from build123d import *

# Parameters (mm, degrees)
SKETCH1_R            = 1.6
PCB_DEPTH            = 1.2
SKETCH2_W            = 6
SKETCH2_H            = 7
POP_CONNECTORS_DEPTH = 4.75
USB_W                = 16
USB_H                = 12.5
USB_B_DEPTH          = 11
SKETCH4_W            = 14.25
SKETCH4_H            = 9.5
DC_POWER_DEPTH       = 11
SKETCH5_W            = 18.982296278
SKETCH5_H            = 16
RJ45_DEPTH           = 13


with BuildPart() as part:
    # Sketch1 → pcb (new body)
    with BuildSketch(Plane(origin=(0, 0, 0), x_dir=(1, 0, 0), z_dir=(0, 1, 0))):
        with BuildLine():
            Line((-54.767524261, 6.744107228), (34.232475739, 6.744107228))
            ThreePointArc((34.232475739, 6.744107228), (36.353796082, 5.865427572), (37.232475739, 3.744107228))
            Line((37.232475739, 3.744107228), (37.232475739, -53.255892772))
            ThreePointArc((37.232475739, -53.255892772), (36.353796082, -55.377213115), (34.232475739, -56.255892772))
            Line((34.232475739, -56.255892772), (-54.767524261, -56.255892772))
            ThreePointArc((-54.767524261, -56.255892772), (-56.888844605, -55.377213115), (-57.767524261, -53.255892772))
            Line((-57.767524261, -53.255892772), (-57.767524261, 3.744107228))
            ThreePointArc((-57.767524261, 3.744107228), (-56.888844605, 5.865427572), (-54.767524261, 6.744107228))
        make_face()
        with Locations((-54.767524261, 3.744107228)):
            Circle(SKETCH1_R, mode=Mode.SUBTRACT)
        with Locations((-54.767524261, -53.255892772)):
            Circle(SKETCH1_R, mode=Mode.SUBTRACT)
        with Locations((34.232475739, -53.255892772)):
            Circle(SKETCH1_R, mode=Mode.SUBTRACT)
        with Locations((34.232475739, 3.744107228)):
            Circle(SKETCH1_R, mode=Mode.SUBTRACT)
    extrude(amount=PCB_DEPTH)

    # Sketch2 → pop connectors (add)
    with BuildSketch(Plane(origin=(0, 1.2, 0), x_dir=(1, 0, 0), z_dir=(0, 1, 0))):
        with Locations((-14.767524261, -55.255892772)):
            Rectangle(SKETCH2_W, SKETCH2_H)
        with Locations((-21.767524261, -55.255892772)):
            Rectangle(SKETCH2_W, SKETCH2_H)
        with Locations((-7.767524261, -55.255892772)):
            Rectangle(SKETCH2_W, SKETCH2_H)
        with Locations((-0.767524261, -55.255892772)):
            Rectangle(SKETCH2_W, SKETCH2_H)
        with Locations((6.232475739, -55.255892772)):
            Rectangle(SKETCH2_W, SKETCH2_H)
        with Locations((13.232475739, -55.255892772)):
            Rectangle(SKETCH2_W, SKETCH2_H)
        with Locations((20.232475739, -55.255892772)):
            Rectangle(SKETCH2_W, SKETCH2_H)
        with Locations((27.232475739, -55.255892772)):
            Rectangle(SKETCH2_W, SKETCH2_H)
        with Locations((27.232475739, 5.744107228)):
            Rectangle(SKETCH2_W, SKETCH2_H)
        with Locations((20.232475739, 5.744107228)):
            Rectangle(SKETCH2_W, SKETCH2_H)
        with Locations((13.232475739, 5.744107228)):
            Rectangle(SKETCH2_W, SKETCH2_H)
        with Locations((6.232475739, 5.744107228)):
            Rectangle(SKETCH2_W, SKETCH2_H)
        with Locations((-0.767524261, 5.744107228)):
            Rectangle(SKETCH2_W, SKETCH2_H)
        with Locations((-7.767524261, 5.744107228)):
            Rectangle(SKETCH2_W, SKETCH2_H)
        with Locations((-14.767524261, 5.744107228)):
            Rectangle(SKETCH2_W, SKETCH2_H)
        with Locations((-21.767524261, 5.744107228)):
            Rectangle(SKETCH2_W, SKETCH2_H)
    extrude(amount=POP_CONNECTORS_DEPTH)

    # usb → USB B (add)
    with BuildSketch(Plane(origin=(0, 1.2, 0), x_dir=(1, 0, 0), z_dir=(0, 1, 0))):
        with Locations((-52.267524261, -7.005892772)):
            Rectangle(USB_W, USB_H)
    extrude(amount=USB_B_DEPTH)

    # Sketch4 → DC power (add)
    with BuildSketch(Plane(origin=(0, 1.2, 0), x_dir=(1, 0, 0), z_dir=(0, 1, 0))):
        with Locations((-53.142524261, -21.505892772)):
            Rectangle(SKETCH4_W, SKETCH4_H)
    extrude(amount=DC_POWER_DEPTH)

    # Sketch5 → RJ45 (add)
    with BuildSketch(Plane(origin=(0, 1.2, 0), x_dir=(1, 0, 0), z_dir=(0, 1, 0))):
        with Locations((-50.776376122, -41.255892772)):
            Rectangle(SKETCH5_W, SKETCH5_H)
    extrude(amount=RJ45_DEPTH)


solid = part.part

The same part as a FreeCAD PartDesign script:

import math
import FreeCAD as App
import Part
import Sketcher

doc = App.newDocument("Part")
params = doc.addObject("Spreadsheet::Sheet", "Params")
for row, (alias, value) in enumerate([
    ("sketch1_radius", "3 mm"),
    ("sketch1_diameter", "3.2 mm"),
    ("sketch1_width", "89 mm"),
    ("sketch1_height", "57 mm"),
    ("pad1_length", "1.2 mm"),
    ("sketch2_width", "6 mm"),
    ("sketch2_height", "7 mm"),
    ("pad2_length", "4.75 mm"),
    ("sketch3_width", "16 mm"),
    ("sketch3_height", "12.5 mm"),
    ("pad3_length", "11 mm"),
    ("sketch4_height", "9.5 mm"),
    ("sketch4_width", "14.25 mm"),
    ("pad4_length", "11 mm"),
    ("sketch5_height", "16 mm"),
    ("pad5_length", "13 mm"),
], start=1):
    params.set(f"A{row}", alias)
    params.set(f"B{row}", "=" + value)
    params.setAlias(f"B{row}", alias)

body = doc.addObject("PartDesign::Body", "Body")

sketch1 = body.newObject("Sketcher::SketchObject", "Sketch")
sketch1.AttachmentSupport = (doc.getObject("XZ_Plane"), [""])
sketch1.MapMode = "FlatFace"
sketch1.addGeometry(Part.LineSegment(App.Vector(34.2, -6.7, 0), App.Vector(-54.8, -6.7, 0)), False)
sketch1.addGeometry(Part.ArcOfCircle(Part.Circle(App.Vector(-54.8, -3.7, 0), App.Vector(0, 0, 1), 3), math.radians(180), math.radians(270)), False)
sketch1.addGeometry(Part.LineSegment(App.Vector(-57.8, -3.7, 0), App.Vector(-57.8, 53.3, 0)), False)
sketch1.addGeometry(Part.ArcOfCircle(Part.Circle(App.Vector(-54.8, 53.3, 0), App.Vector(0, 0, 1), 3), math.radians(90), math.radians(180)), False)
sketch1.addGeometry(Part.LineSegment(App.Vector(-54.8, 56.3, 0), App.Vector(34.2, 56.3, 0)), False)
sketch1.addGeometry(Part.ArcOfCircle(Part.Circle(App.Vector(34.2, 53.3, 0), App.Vector(0, 0, 1), 3), math.radians(0), math.radians(90)), False)
sketch1.addGeometry(Part.LineSegment(App.Vector(37.2, 53.3, 0), App.Vector(37.2, -3.7, 0)), False)
sketch1.addGeometry(Part.ArcOfCircle(Part.Circle(App.Vector(34.2, -3.7, 0), App.Vector(0, 0, 1), 3), math.radians(-90), math.radians(0)), False)
sketch1.addGeometry(Part.Circle(App.Vector(34.2, 53.3, 0), App.Vector(0, 0, 1), 1.6), False)
sketch1.addGeometry(Part.Circle(App.Vector(-54.8, 53.3, 0), App.Vector(0, 0, 1), 1.6), False)
sketch1.addGeometry(Part.Circle(App.Vector(34.2, -3.7, 0), App.Vector(0, 0, 1), 1.6), False)
sketch1.addGeometry(Part.Circle(App.Vector(-54.8, -3.7, 0), App.Vector(0, 0, 1), 1.6), False)
sketch1.addConstraint(Sketcher.Constraint("Tangent", 0, 2, 1, 2))
sketch1.addConstraint(Sketcher.Constraint("Tangent", 1, 1, 2, 1))
sketch1.addConstraint(Sketcher.Constraint("Tangent", 2, 2, 3, 2))
sketch1.addConstraint(Sketcher.Constraint("Tangent", 3, 1, 4, 1))
sketch1.addConstraint(Sketcher.Constraint("Tangent", 4, 2, 5, 2))
sketch1.addConstraint(Sketcher.Constraint("Tangent", 5, 1, 6, 1))
sketch1.addConstraint(Sketcher.Constraint("Tangent", 6, 2, 7, 2))
sketch1.addConstraint(Sketcher.Constraint("Tangent", 7, 1, 0, 1))
sketch1.addConstraint(Sketcher.Constraint("Horizontal", 0))
sketch1.addConstraint(Sketcher.Constraint("Vertical", 2))
sketch1.addConstraint(Sketcher.Constraint("Horizontal", 4))
sketch1.addConstraint(Sketcher.Constraint("Vertical", 6))
sketch1.addConstraint(Sketcher.Constraint("Coincident", 8, 3, 5, 3))
sketch1.addConstraint(Sketcher.Constraint("Coincident", 9, 3, 3, 3))
sketch1.addConstraint(Sketcher.Constraint("Coincident", 10, 3, 7, 3))
sketch1.addConstraint(Sketcher.Constraint("Coincident", 11, 3, 1, 3))
sketch1.addConstraint(Sketcher.Constraint("Equal", 1, 3))
sketch1.addConstraint(Sketcher.Constraint("Equal", 3, 5))
sketch1.addConstraint(Sketcher.Constraint("Equal", 5, 7))
sketch1.addConstraint(Sketcher.Constraint("Equal", 8, 9))
sketch1.addConstraint(Sketcher.Constraint("Equal", 9, 10))
sketch1.addConstraint(Sketcher.Constraint("Equal", 10, 11))
sketch1.addConstraint(Sketcher.Constraint("Radius", 1, 3.0))
sketch1.addConstraint(Sketcher.Constraint("Diameter", 8, 3.2))
sketch1.addConstraint(Sketcher.Constraint("DistanceX", 0, 2, 0, 1, 89.0))
sketch1.addConstraint(Sketcher.Constraint("DistanceY", 2, 1, 2, 2, 57.0))
sketch1.addConstraint(Sketcher.Constraint("DistanceX", 1, 3, -1, 1, 54.767524))
sketch1.addConstraint(Sketcher.Constraint("DistanceY", 1, 3, -1, 1, 3.744107))
sketch1.setExpression("Constraints[22]", "Params.sketch1_radius")
sketch1.setExpression("Constraints[23]", "Params.sketch1_diameter")
sketch1.setExpression("Constraints[24]", "Params.sketch1_width")
sketch1.setExpression("Constraints[25]", "Params.sketch1_height")
pad1 = body.newObject("PartDesign::Pad", "Pad")
pad1.Profile = sketch1
pad1.setExpression("Length", "Params.pad1_length")
pad1.Reversed = True

sketch2 = body.newObject("Sketcher::SketchObject", "Sketch001")
sketch2.AttachmentSupport = (doc.getObject("XZ_Plane"), [""])
sketch2.MapMode = "FlatFace"
sketch2.AttachmentOffset = App.Placement(App.Vector(0, 0, -1.2), App.Rotation())
sketch2.addGeometry(Part.LineSegment(App.Vector(-18, 52, 0), App.Vector(-18, 59, 0)), False)
sketch2.addGeometry(Part.LineSegment(App.Vector(-18, 59, 0), App.Vector(-12, 59, 0)), False)
sketch2.addGeometry(Part.LineSegment(App.Vector(-12, 59, 0), App.Vector(-12, 52, 0)), False)
sketch2.addGeometry(Part.LineSegment(App.Vector(-12, 52, 0), App.Vector(-18, 52, 0)), False)
sketch2.addGeometry(Part.LineSegment(App.Vector(-25, 52, 0), App.Vector(-25, 59, 0)), False)
sketch2.addGeometry(Part.LineSegment(App.Vector(-25, 59, 0), App.Vector(-19, 59, 0)), False)
sketch2.addGeometry(Part.LineSegment(App.Vector(-19, 59, 0), App.Vector(-19, 52, 0)), False)
sketch2.addGeometry(Part.LineSegment(App.Vector(-19, 52, 0), App.Vector(-25, 52, 0)), False)
sketch2.addGeometry(Part.LineSegment(App.Vector(-11, 52, 0), App.Vector(-11, 59, 0)), False)
sketch2.addGeometry(Part.LineSegment(App.Vector(-11, 59, 0), App.Vector(-5, 59, 0)), False)
sketch2.addGeometry(Part.LineSegment(App.Vector(-5, 59, 0), App.Vector(-5, 52, 0)), False)
sketch2.addGeometry(Part.LineSegment(App.Vector(-5, 52, 0), App.Vector(-11, 52, 0)), False)
sketch2.addGeometry(Part.LineSegment(App.Vector(-4, 52, 0), App.Vector(-4, 59, 0)), False)
sketch2.addGeometry(Part.LineSegment(App.Vector(-4, 59, 0), App.Vector(2, 59, 0)), False)
sketch2.addGeometry(Part.LineSegment(App.Vector(2, 59, 0), App.Vector(2, 52, 0)), False)
sketch2.addGeometry(Part.LineSegment(App.Vector(2, 52, 0), App.Vector(-4, 52, 0)), False)
sketch2.addGeometry(Part.LineSegment(App.Vector(3, 52, 0), App.Vector(3, 59, 0)), False)
sketch2.addGeometry(Part.LineSegment(App.Vector(3, 59, 0), App.Vector(9, 59, 0)), False)
sketch2.addGeometry(Part.LineSegment(App.Vector(9, 59, 0), App.Vector(9, 52, 0)), False)
sketch2.addGeometry(Part.LineSegment(App.Vector(9, 52, 0), App.Vector(3, 52, 0)), False)
sketch2.addGeometry(Part.LineSegment(App.Vector(10, 52, 0), App.Vector(10, 59, 0)), False)
sketch2.addGeometry(Part.LineSegment(App.Vector(10, 59, 0), App.Vector(16, 59, 0)), False)
sketch2.addGeometry(Part.LineSegment(App.Vector(16, 59, 0), App.Vector(16, 52, 0)), False)
sketch2.addGeometry(Part.LineSegment(App.Vector(16, 52, 0), App.Vector(10, 52, 0)), False)
sketch2.addGeometry(Part.LineSegment(App.Vector(17, 52, 0), App.Vector(17, 59, 0)), False)
sketch2.addGeometry(Part.LineSegment(App.Vector(17, 59, 0), App.Vector(23, 59, 0)), False)
sketch2.addGeometry(Part.LineSegment(App.Vector(23, 59, 0), App.Vector(23, 52, 0)), False)
sketch2.addGeometry(Part.LineSegment(App.Vector(23, 52, 0), App.Vector(17, 52, 0)), False)
sketch2.addGeometry(Part.LineSegment(App.Vector(24, 52, 0), App.Vector(24, 59, 0)), False)
sketch2.addGeometry(Part.LineSegment(App.Vector(24, 59, 0), App.Vector(30, 59, 0)), False)
sketch2.addGeometry(Part.LineSegment(App.Vector(30, 59, 0), App.Vector(30, 52, 0)), False)
sketch2.addGeometry(Part.LineSegment(App.Vector(30, 52, 0), App.Vector(24, 52, 0)), False)
sketch2.addGeometry(Part.LineSegment(App.Vector(24, -9, 0), App.Vector(24, -2, 0)), False)
sketch2.addGeometry(Part.LineSegment(App.Vector(24, -2, 0), App.Vector(30, -2, 0)), False)
sketch2.addGeometry(Part.LineSegment(App.Vector(30, -2, 0), App.Vector(30, -9, 0)), False)
sketch2.addGeometry(Part.LineSegment(App.Vector(30, -9, 0), App.Vector(24, -9, 0)), False)
sketch2.addGeometry(Part.LineSegment(App.Vector(17, -9, 0), App.Vector(17, -2, 0)), False)
sketch2.addGeometry(Part.LineSegment(App.Vector(17, -2, 0), App.Vector(23, -2, 0)), False)
sketch2.addGeometry(Part.LineSegment(App.Vector(23, -2, 0), App.Vector(23, -9, 0)), False)
sketch2.addGeometry(Part.LineSegment(App.Vector(23, -9, 0), App.Vector(17, -9, 0)), False)
sketch2.addGeometry(Part.LineSegment(App.Vector(10, -9, 0), App.Vector(10, -2, 0)), False)
sketch2.addGeometry(Part.LineSegment(App.Vector(10, -2, 0), App.Vector(16, -2, 0)), False)
sketch2.addGeometry(Part.LineSegment(App.Vector(16, -2, 0), App.Vector(16, -9, 0)), False)
sketch2.addGeometry(Part.LineSegment(App.Vector(16, -9, 0), App.Vector(10, -9, 0)), False)
sketch2.addGeometry(Part.LineSegment(App.Vector(3, -9, 0), App.Vector(3, -2, 0)), False)
sketch2.addGeometry(Part.LineSegment(App.Vector(3, -2, 0), App.Vector(9, -2, 0)), False)
sketch2.addGeometry(Part.LineSegment(App.Vector(9, -2, 0), App.Vector(9, -9, 0)), False)
sketch2.addGeometry(Part.LineSegment(App.Vector(9, -9, 0), App.Vector(3, -9, 0)), False)
sketch2.addGeometry(Part.LineSegment(App.Vector(-4, -9, 0), App.Vector(-4, -2, 0)), False)
sketch2.addGeometry(Part.LineSegment(App.Vector(-4, -2, 0), App.Vector(2, -2, 0)), False)
sketch2.addGeometry(Part.LineSegment(App.Vector(2, -2, 0), App.Vector(2, -9, 0)), False)
sketch2.addGeometry(Part.LineSegment(App.Vector(2, -9, 0), App.Vector(-4, -9, 0)), False)
sketch2.addGeometry(Part.LineSegment(App.Vector(-11, -9, 0), App.Vector(-11, -2, 0)), False)
sketch2.addGeometry(Part.LineSegment(App.Vector(-11, -2, 0), App.Vector(-5, -2, 0)), False)
sketch2.addGeometry(Part.LineSegment(App.Vector(-5, -2, 0), App.Vector(-5, -9, 0)), False)
sketch2.addGeometry(Part.LineSegment(App.Vector(-5, -9, 0), App.Vector(-11, -9, 0)), False)
sketch2.addGeometry(Part.LineSegment(App.Vector(-18, -9, 0), App.Vector(-18, -2, 0)), False)
sketch2.addGeometry(Part.LineSegment(App.Vector(-18, -2, 0), App.Vector(-12, -2, 0)), False)
sketch2.addGeometry(Part.LineSegment(App.Vector(-12, -2, 0), App.Vector(-12, -9, 0)), False)
sketch2.addGeometry(Part.LineSegment(App.Vector(-12, -9, 0), App.Vector(-18, -9, 0)), False)
sketch2.addGeometry(Part.LineSegment(App.Vector(-25, -9, 0), App.Vector(-25, -2, 0)), False)
sketch2.addGeometry(Part.LineSegment(App.Vector(-25, -2, 0), App.Vector(-19, -2, 0)), False)
sketch2.addGeometry(Part.LineSegment(App.Vector(-19, -2, 0), App.Vector(-19, -9, 0)), False)
sketch2.addGeometry(Part.LineSegment(App.Vector(-19, -9, 0), App.Vector(-25, -9, 0)), False)
sketch2.addConstraint(Sketcher.Constraint("Coincident", 0, 2, 1, 1))
sketch2.addConstraint(Sketcher.Constraint("Coincident", 1, 2, 2, 1))
sketch2.addConstraint(Sketcher.Constraint("Coincident", 2, 2, 3, 1))
sketch2.addConstraint(Sketcher.Constraint("Coincident", 3, 2, 0, 1))
sketch2.addConstraint(Sketcher.Constraint("Coincident", 4, 2, 5, 1))
sketch2.addConstraint(Sketcher.Constraint("Coincident", 5, 2, 6, 1))
sketch2.addConstraint(Sketcher.Constraint("Coincident", 6, 2, 7, 1))
sketch2.addConstraint(Sketcher.Constraint("Coincident", 7, 2, 4, 1))
sketch2.addConstraint(Sketcher.Constraint("Coincident", 8, 2, 9, 1))
sketch2.addConstraint(Sketcher.Constraint("Coincident", 9, 2, 10, 1))
sketch2.addConstraint(Sketcher.Constraint("Coincident", 10, 2, 11, 1))
sketch2.addConstraint(Sketcher.Constraint("Coincident", 11, 2, 8, 1))
sketch2.addConstraint(Sketcher.Constraint("Coincident", 12, 2, 13, 1))
sketch2.addConstraint(Sketcher.Constraint("Coincident", 13, 2, 14, 1))
sketch2.addConstraint(Sketcher.Constraint("Coincident", 14, 2, 15, 1))
sketch2.addConstraint(Sketcher.Constraint("Coincident", 15, 2, 12, 1))
sketch2.addConstraint(Sketcher.Constraint("Coincident", 16, 2, 17, 1))
sketch2.addConstraint(Sketcher.Constraint("Coincident", 17, 2, 18, 1))
sketch2.addConstraint(Sketcher.Constraint("Coincident", 18, 2, 19, 1))
sketch2.addConstraint(Sketcher.Constraint("Coincident", 19, 2, 16, 1))
sketch2.addConstraint(Sketcher.Constraint("Coincident", 20, 2, 21, 1))
sketch2.addConstraint(Sketcher.Constraint("Coincident", 21, 2, 22, 1))
sketch2.addConstraint(Sketcher.Constraint("Coincident", 22, 2, 23, 1))
sketch2.addConstraint(Sketcher.Constraint("Coincident", 23, 2, 20, 1))
sketch2.addConstraint(Sketcher.Constraint("Coincident", 24, 2, 25, 1))
sketch2.addConstraint(Sketcher.Constraint("Coincident", 25, 2, 26, 1))
sketch2.addConstraint(Sketcher.Constraint("Coincident", 26, 2, 27, 1))
sketch2.addConstraint(Sketcher.Constraint("Coincident", 27, 2, 24, 1))
sketch2.addConstraint(Sketcher.Constraint("Coincident", 28, 2, 29, 1))
sketch2.addConstraint(Sketcher.Constraint("Coincident", 29, 2, 30, 1))
sketch2.addConstraint(Sketcher.Constraint("Coincident", 30, 2, 31, 1))
sketch2.addConstraint(Sketcher.Constraint("Coincident", 31, 2, 28, 1))
sketch2.addConstraint(Sketcher.Constraint("Coincident", 32, 2, 33, 1))
sketch2.addConstraint(Sketcher.Constraint("Coincident", 33, 2, 34, 1))
sketch2.addConstraint(Sketcher.Constraint("Coincident", 34, 2, 35, 1))
sketch2.addConstraint(Sketcher.Constraint("Coincident", 35, 2, 32, 1))
sketch2.addConstraint(Sketcher.Constraint("Coincident", 36, 2, 37, 1))
sketch2.addConstraint(Sketcher.Constraint("Coincident", 37, 2, 38, 1))
sketch2.addConstraint(Sketcher.Constraint("Coincident", 38, 2, 39, 1))
sketch2.addConstraint(Sketcher.Constraint("Coincident", 39, 2, 36, 1))
sketch2.addConstraint(Sketcher.Constraint("Coincident", 40, 2, 41, 1))
sketch2.addConstraint(Sketcher.Constraint("Coincident", 41, 2, 42, 1))
sketch2.addConstraint(Sketcher.Constraint("Coincident", 42, 2, 43, 1))
sketch2.addConstraint(Sketcher.Constraint("Coincident", 43, 2, 40, 1))
sketch2.addConstraint(Sketcher.Constraint("Coincident", 44, 2, 45, 1))
sketch2.addConstraint(Sketcher.Constraint("Coincident", 45, 2, 46, 1))
sketch2.addConstraint(Sketcher.Constraint("Coincident", 46, 2, 47, 1))
sketch2.addConstraint(Sketcher.Constraint("Coincident", 47, 2, 44, 1))
sketch2.addConstraint(Sketcher.Constraint("Coincident", 48, 2, 49, 1))
sketch2.addConstraint(Sketcher.Constraint("Coincident", 49, 2, 50, 1))
sketch2.addConstraint(Sketcher.Constraint("Coincident", 50, 2, 51, 1))
sketch2.addConstraint(Sketcher.Constraint("Coincident", 51, 2, 48, 1))
sketch2.addConstraint(Sketcher.Constraint("Coincident", 52, 2, 53, 1))
sketch2.addConstraint(Sketcher.Constraint("Coincident", 53, 2, 54, 1))
sketch2.addConstraint(Sketcher.Constraint("Coincident", 54, 2, 55, 1))
sketch2.addConstraint(Sketcher.Constraint("Coincident", 55, 2, 52, 1))
sketch2.addConstraint(Sketcher.Constraint("Coincident", 56, 2, 57, 1))
sketch2.addConstraint(Sketcher.Constraint("Coincident", 57, 2, 58, 1))
sketch2.addConstraint(Sketcher.Constraint("Coincident", 58, 2, 59, 1))
sketch2.addConstraint(Sketcher.Constraint("Coincident", 59, 2, 56, 1))
sketch2.addConstraint(Sketcher.Constraint("Coincident", 60, 2, 61, 1))
sketch2.addConstraint(Sketcher.Constraint("Coincident", 61, 2, 62, 1))
sketch2.addConstraint(Sketcher.Constraint("Coincident", 62, 2, 63, 1))
sketch2.addConstraint(Sketcher.Constraint("Coincident", 63, 2, 60, 1))
sketch2.addConstraint(Sketcher.Constraint("Vertical", 0))
sketch2.addConstraint(Sketcher.Constraint("Horizontal", 1))
sketch2.addConstraint(Sketcher.Constraint("Vertical", 2))
sketch2.addConstraint(Sketcher.Constraint("Horizontal", 3))
sketch2.addConstraint(Sketcher.Constraint("Vertical", 4))
sketch2.addConstraint(Sketcher.Constraint("Horizontal", 5))
sketch2.addConstraint(Sketcher.Constraint("Vertical", 6))
sketch2.addConstraint(Sketcher.Constraint("Horizontal", 7))
sketch2.addConstraint(Sketcher.Constraint("Vertical", 8))
sketch2.addConstraint(Sketcher.Constraint("Horizontal", 9))
sketch2.addConstraint(Sketcher.Constraint("Vertical", 10))
sketch2.addConstraint(Sketcher.Constraint("Horizontal", 11))
sketch2.addConstraint(Sketcher.Constraint("Vertical", 12))
sketch2.addConstraint(Sketcher.Constraint("Horizontal", 13))
sketch2.addConstraint(Sketcher.Constraint("Vertical", 14))
sketch2.addConstraint(Sketcher.Constraint("Horizontal", 15))
sketch2.addConstraint(Sketcher.Constraint("Vertical", 16))
sketch2.addConstraint(Sketcher.Constraint("Horizontal", 17))
sketch2.addConstraint(Sketcher.Constraint("Vertical", 18))
sketch2.addConstraint(Sketcher.Constraint("Horizontal", 19))
sketch2.addConstraint(Sketcher.Constraint("Vertical", 20))
sketch2.addConstraint(Sketcher.Constraint("Horizontal", 21))
sketch2.addConstraint(Sketcher.Constraint("Vertical", 22))
sketch2.addConstraint(Sketcher.Constraint("Horizontal", 23))
sketch2.addConstraint(Sketcher.Constraint("Vertical", 24))
sketch2.addConstraint(Sketcher.Constraint("Horizontal", 25))
sketch2.addConstraint(Sketcher.Constraint("Vertical", 26))
sketch2.addConstraint(Sketcher.Constraint("Horizontal", 27))
sketch2.addConstraint(Sketcher.Constraint("Vertical", 28))
sketch2.addConstraint(Sketcher.Constraint("Horizontal", 29))
sketch2.addConstraint(Sketcher.Constraint("Vertical", 30))
sketch2.addConstraint(Sketcher.Constraint("Horizontal", 31))
sketch2.addConstraint(Sketcher.Constraint("Vertical", 32))
sketch2.addConstraint(Sketcher.Constraint("Horizontal", 33))
sketch2.addConstraint(Sketcher.Constraint("Vertical", 34))
sketch2.addConstraint(Sketcher.Constraint("Horizontal", 35))
sketch2.addConstraint(Sketcher.Constraint("Vertical", 36))
sketch2.addConstraint(Sketcher.Constraint("Horizontal", 37))
sketch2.addConstraint(Sketcher.Constraint("Vertical", 38))
sketch2.addConstraint(Sketcher.Constraint("Horizontal", 39))
sketch2.addConstraint(Sketcher.Constraint("Vertical", 40))
sketch2.addConstraint(Sketcher.Constraint("Horizontal", 41))
sketch2.addConstraint(Sketcher.Constraint("Vertical", 42))
sketch2.addConstraint(Sketcher.Constraint("Horizontal", 43))
sketch2.addConstraint(Sketcher.Constraint("Vertical", 44))
sketch2.addConstraint(Sketcher.Constraint("Horizontal", 45))
sketch2.addConstraint(Sketcher.Constraint("Vertical", 46))
sketch2.addConstraint(Sketcher.Constraint("Horizontal", 47))
sketch2.addConstraint(Sketcher.Constraint("Vertical", 48))
sketch2.addConstraint(Sketcher.Constraint("Horizontal", 49))
sketch2.addConstraint(Sketcher.Constraint("Vertical", 50))
sketch2.addConstraint(Sketcher.Constraint("Horizontal", 51))
sketch2.addConstraint(Sketcher.Constraint("Vertical", 52))
sketch2.addConstraint(Sketcher.Constraint("Horizontal", 53))
sketch2.addConstraint(Sketcher.Constraint("Vertical", 54))
sketch2.addConstraint(Sketcher.Constraint("Horizontal", 55))
sketch2.addConstraint(Sketcher.Constraint("Vertical", 56))
sketch2.addConstraint(Sketcher.Constraint("Horizontal", 57))
sketch2.addConstraint(Sketcher.Constraint("Vertical", 58))
sketch2.addConstraint(Sketcher.Constraint("Horizontal", 59))
sketch2.addConstraint(Sketcher.Constraint("Vertical", 60))
sketch2.addConstraint(Sketcher.Constraint("Horizontal", 61))
sketch2.addConstraint(Sketcher.Constraint("Vertical", 62))
sketch2.addConstraint(Sketcher.Constraint("Horizontal", 63))
sketch2.addConstraint(Sketcher.Constraint("Horizontal", 1, 2, 4, 2))
sketch2.addConstraint(Sketcher.Constraint("Horizontal", 3, 2, 6, 2))
sketch2.addConstraint(Sketcher.Constraint("Horizontal", 5, 2, 8, 2))
sketch2.addConstraint(Sketcher.Constraint("Horizontal", 7, 2, 10, 2))
sketch2.addConstraint(Sketcher.Constraint("Horizontal", 9, 2, 12, 2))
sketch2.addConstraint(Sketcher.Constraint("Horizontal", 11, 2, 14, 2))
sketch2.addConstraint(Sketcher.Constraint("Horizontal", 13, 2, 16, 2))
sketch2.addConstraint(Sketcher.Constraint("Horizontal", 15, 2, 18, 2))
sketch2.addConstraint(Sketcher.Constraint("Horizontal", 17, 2, 20, 2))
sketch2.addConstraint(Sketcher.Constraint("Horizontal", 19, 2, 22, 2))
sketch2.addConstraint(Sketcher.Constraint("Horizontal", 21, 2, 24, 2))
sketch2.addConstraint(Sketcher.Constraint("Horizontal", 23, 2, 26, 2))
sketch2.addConstraint(Sketcher.Constraint("Horizontal", 25, 2, 28, 2))
sketch2.addConstraint(Sketcher.Constraint("Horizontal", 27, 2, 30, 2))
sketch2.addConstraint(Sketcher.Constraint("Horizontal", 33, 2, 36, 2))
sketch2.addConstraint(Sketcher.Constraint("Horizontal", 35, 2, 38, 2))
sketch2.addConstraint(Sketcher.Constraint("Horizontal", 37, 2, 40, 2))
sketch2.addConstraint(Sketcher.Constraint("Horizontal", 39, 2, 42, 2))
sketch2.addConstraint(Sketcher.Constraint("Horizontal", 41, 2, 44, 2))
sketch2.addConstraint(Sketcher.Constraint("Horizontal", 43, 2, 46, 2))
sketch2.addConstraint(Sketcher.Constraint("Horizontal", 45, 2, 48, 2))
sketch2.addConstraint(Sketcher.Constraint("Horizontal", 47, 2, 50, 2))
sketch2.addConstraint(Sketcher.Constraint("Horizontal", 49, 2, 52, 2))
sketch2.addConstraint(Sketcher.Constraint("Horizontal", 51, 2, 54, 2))
sketch2.addConstraint(Sketcher.Constraint("Horizontal", 53, 2, 56, 2))
sketch2.addConstraint(Sketcher.Constraint("Horizontal", 55, 2, 58, 2))
sketch2.addConstraint(Sketcher.Constraint("Horizontal", 57, 2, 60, 2))
sketch2.addConstraint(Sketcher.Constraint("Horizontal", 59, 2, 62, 2))
sketch2.addConstraint(Sketcher.Constraint("Vertical", 31, 2, 32, 2))
sketch2.addConstraint(Sketcher.Constraint("Vertical", 30, 2, 33, 2))
sketch2.addConstraint(Sketcher.Constraint("Vertical", 27, 2, 36, 2))
sketch2.addConstraint(Sketcher.Constraint("Vertical", 26, 2, 37, 2))
sketch2.addConstraint(Sketcher.Constraint("Vertical", 23, 2, 40, 2))
sketch2.addConstraint(Sketcher.Constraint("Vertical", 22, 2, 41, 2))
sketch2.addConstraint(Sketcher.Constraint("Vertical", 19, 2, 44, 2))
sketch2.addConstraint(Sketcher.Constraint("Vertical", 18, 2, 45, 2))
sketch2.addConstraint(Sketcher.Constraint("Vertical", 15, 2, 48, 2))
sketch2.addConstraint(Sketcher.Constraint("Vertical", 14, 2, 49, 2))
sketch2.addConstraint(Sketcher.Constraint("Vertical", 11, 2, 52, 2))
sketch2.addConstraint(Sketcher.Constraint("Vertical", 10, 2, 53, 2))
sketch2.addConstraint(Sketcher.Constraint("Vertical", 3, 2, 56, 2))
sketch2.addConstraint(Sketcher.Constraint("Vertical", 2, 2, 57, 2))
sketch2.addConstraint(Sketcher.Constraint("Vertical", 7, 2, 60, 2))
sketch2.addConstraint(Sketcher.Constraint("Vertical", 6, 2, 61, 2))
sketch2.addConstraint(Sketcher.Constraint("Equal", 3, 5))
sketch2.addConstraint(Sketcher.Constraint("Equal", 7, 9))
sketch2.addConstraint(Sketcher.Constraint("Equal", 11, 13))
sketch2.addConstraint(Sketcher.Constraint("Equal", 15, 17))
sketch2.addConstraint(Sketcher.Constraint("Equal", 19, 21))
sketch2.addConstraint(Sketcher.Constraint("Equal", 23, 25))
sketch2.addConstraint(Sketcher.Constraint("Equal", 27, 29))
sketch2.addConstraint(Sketcher.Constraint("Equal", 30, 32))
sketch2.addConstraint(Sketcher.Constraint("DistanceX", 1, 1, 1, 2, 6.0))
sketch2.addConstraint(Sketcher.Constraint("DistanceY", 0, 1, 0, 2, 7.0))
sketch2.addConstraint(Sketcher.Constraint("DistanceX", 0, 2, -1, 1, 17.767524))
sketch2.addConstraint(Sketcher.Constraint("DistanceY", -1, 1, 0, 2, 58.755893))
sketch2.addConstraint(Sketcher.Constraint("DistanceX", 4, 2, -1, 1, 24.767524))
sketch2.addConstraint(Sketcher.Constraint("DistanceX", 8, 2, -1, 1, 10.767524))
sketch2.addConstraint(Sketcher.Constraint("DistanceX", 12, 2, -1, 1, 3.767524))
sketch2.addConstraint(Sketcher.Constraint("DistanceX", -1, 1, 16, 2, 3.232476))
sketch2.addConstraint(Sketcher.Constraint("DistanceX", -1, 1, 20, 2, 10.232476))
sketch2.addConstraint(Sketcher.Constraint("DistanceX", -1, 1, 24, 2, 17.232476))
sketch2.addConstraint(Sketcher.Constraint("DistanceX", -1, 1, 28, 2, 24.232476))
sketch2.addConstraint(Sketcher.Constraint("DistanceY", 32, 2, -1, 1, 2.244107))
sketch2.setExpression("Constraints[180]", "Params.sketch2_width")
sketch2.setExpression("Constraints[181]", "Params.sketch2_height")
pad2 = body.newObject("PartDesign::Pad", "Pad001")
pad2.Profile = sketch2
pad2.setExpression("Length", "Params.pad2_length")
pad2.Reversed = True

sketch3 = body.newObject("Sketcher::SketchObject", "Sketch002")
sketch3.AttachmentSupport = (doc.getObject("XZ_Plane"), [""])
sketch3.MapMode = "FlatFace"
sketch3.AttachmentOffset = App.Placement(App.Vector(0, 0, -1.2), App.Rotation())
sketch3.addGeometry(Part.LineSegment(App.Vector(-60, 1, 0), App.Vector(-60, 13, 0)), False)
sketch3.addGeometry(Part.LineSegment(App.Vector(-60, 13, 0), App.Vector(-44, 13, 0)), False)
sketch3.addGeometry(Part.LineSegment(App.Vector(-44, 13, 0), App.Vector(-44, 1, 0)), False)
sketch3.addGeometry(Part.LineSegment(App.Vector(-44, 1, 0), App.Vector(-60, 1, 0)), False)
sketch3.addConstraint(Sketcher.Constraint("Coincident", 0, 2, 1, 1))
sketch3.addConstraint(Sketcher.Constraint("Coincident", 1, 2, 2, 1))
sketch3.addConstraint(Sketcher.Constraint("Coincident", 2, 2, 3, 1))
sketch3.addConstraint(Sketcher.Constraint("Coincident", 3, 2, 0, 1))
sketch3.addConstraint(Sketcher.Constraint("Vertical", 0))
sketch3.addConstraint(Sketcher.Constraint("Horizontal", 1))
sketch3.addConstraint(Sketcher.Constraint("Vertical", 2))
sketch3.addConstraint(Sketcher.Constraint("Horizontal", 3))
sketch3.addConstraint(Sketcher.Constraint("DistanceX", 1, 1, 1, 2, 16.0))
sketch3.addConstraint(Sketcher.Constraint("DistanceY", 0, 1, 0, 2, 12.5))
sketch3.addConstraint(Sketcher.Constraint("DistanceX", 0, 2, -1, 1, 60.267524))
sketch3.addConstraint(Sketcher.Constraint("DistanceY", -1, 1, 0, 2, 13.255893))
sketch3.setExpression("Constraints[8]", "Params.sketch3_width")
sketch3.setExpression("Constraints[9]", "Params.sketch3_height")
pad3 = body.newObject("PartDesign::Pad", "Pad002")
pad3.Profile = sketch3
pad3.setExpression("Length", "Params.pad3_length")
pad3.Reversed = True

sketch4 = body.newObject("Sketcher::SketchObject", "Sketch003")
sketch4.AttachmentSupport = (doc.getObject("XZ_Plane"), [""])
sketch4.MapMode = "FlatFace"
sketch4.AttachmentOffset = App.Placement(App.Vector(0, 0, -1.2), App.Rotation())
sketch4.addGeometry(Part.LineSegment(App.Vector(-60, 17, 0), App.Vector(-60, 26, 0)), False)
sketch4.addGeometry(Part.LineSegment(App.Vector(-60, 26, 0), App.Vector(-46, 26, 0)), False)
sketch4.addGeometry(Part.LineSegment(App.Vector(-46, 26, 0), App.Vector(-46, 17, 0)), False)
sketch4.addGeometry(Part.LineSegment(App.Vector(-46, 17, 0), App.Vector(-60, 17, 0)), False)
sketch4.addConstraint(Sketcher.Constraint("Coincident", 0, 2, 1, 1))
sketch4.addConstraint(Sketcher.Constraint("Coincident", 1, 2, 2, 1))
sketch4.addConstraint(Sketcher.Constraint("Coincident", 2, 2, 3, 1))
sketch4.addConstraint(Sketcher.Constraint("Coincident", 3, 2, 0, 1))
sketch4.addConstraint(Sketcher.Constraint("Vertical", 0))
sketch4.addConstraint(Sketcher.Constraint("Horizontal", 1))
sketch4.addConstraint(Sketcher.Constraint("Vertical", 2))
sketch4.addConstraint(Sketcher.Constraint("Horizontal", 3))
sketch4.addConstraint(Sketcher.Constraint("DistanceY", 0, 1, 0, 2, 9.5))
sketch4.addConstraint(Sketcher.Constraint("DistanceX", 1, 1, 1, 2, 14.25))
sketch4.addConstraint(Sketcher.Constraint("DistanceX", 0, 2, -1, 1, 60.267524))
sketch4.addConstraint(Sketcher.Constraint("DistanceY", -1, 1, 0, 2, 26.255893))
sketch4.setExpression("Constraints[8]", "Params.sketch4_height")
sketch4.setExpression("Constraints[9]", "Params.sketch4_width")
pad4 = body.newObject("PartDesign::Pad", "Pad003")
pad4.Profile = sketch4
pad4.setExpression("Length", "Params.pad4_length")
pad4.Reversed = True

sketch5 = body.newObject("Sketcher::SketchObject", "Sketch004")
sketch5.AttachmentSupport = (doc.getObject("XZ_Plane"), [""])
sketch5.MapMode = "FlatFace"
sketch5.AttachmentOffset = App.Placement(App.Vector(0, 0, -1.2), App.Rotation())
sketch5.addGeometry(Part.LineSegment(App.Vector(-60, 33, 0), App.Vector(-60, 49, 0)), False)
sketch5.addGeometry(Part.LineSegment(App.Vector(-60, 49, 0), App.Vector(-41, 49, 0)), False)
sketch5.addGeometry(Part.LineSegment(App.Vector(-41, 49, 0), App.Vector(-41, 33, 0)), False)
sketch5.addGeometry(Part.LineSegment(App.Vector(-41, 33, 0), App.Vector(-60, 33, 0)), False)
sketch5.addConstraint(Sketcher.Constraint("Coincident", 0, 2, 1, 1))
sketch5.addConstraint(Sketcher.Constraint("Coincident", 1, 2, 2, 1))
sketch5.addConstraint(Sketcher.Constraint("Coincident", 2, 2, 3, 1))
sketch5.addConstraint(Sketcher.Constraint("Coincident", 3, 2, 0, 1))
sketch5.addConstraint(Sketcher.Constraint("Vertical", 0))
sketch5.addConstraint(Sketcher.Constraint("Horizontal", 1))
sketch5.addConstraint(Sketcher.Constraint("Vertical", 2))
sketch5.addConstraint(Sketcher.Constraint("Horizontal", 3))
sketch5.addConstraint(Sketcher.Constraint("DistanceY", 0, 1, 0, 2, 16.0))
sketch5.addConstraint(Sketcher.Constraint("DistanceX", 1, 1, 1, 2, 18.982296))
sketch5.addConstraint(Sketcher.Constraint("DistanceX", 0, 2, -1, 1, 60.267524))
sketch5.addConstraint(Sketcher.Constraint("DistanceY", -1, 1, 0, 2, 49.255893))
sketch5.setExpression("Constraints[8]", "Params.sketch5_height")
pad5 = body.newObject("PartDesign::Pad", "Pad004")
pad5.Profile = sketch5
pad5.setExpression("Length", "Params.pad5_length")
pad5.Reversed = True

doc.recompute()
